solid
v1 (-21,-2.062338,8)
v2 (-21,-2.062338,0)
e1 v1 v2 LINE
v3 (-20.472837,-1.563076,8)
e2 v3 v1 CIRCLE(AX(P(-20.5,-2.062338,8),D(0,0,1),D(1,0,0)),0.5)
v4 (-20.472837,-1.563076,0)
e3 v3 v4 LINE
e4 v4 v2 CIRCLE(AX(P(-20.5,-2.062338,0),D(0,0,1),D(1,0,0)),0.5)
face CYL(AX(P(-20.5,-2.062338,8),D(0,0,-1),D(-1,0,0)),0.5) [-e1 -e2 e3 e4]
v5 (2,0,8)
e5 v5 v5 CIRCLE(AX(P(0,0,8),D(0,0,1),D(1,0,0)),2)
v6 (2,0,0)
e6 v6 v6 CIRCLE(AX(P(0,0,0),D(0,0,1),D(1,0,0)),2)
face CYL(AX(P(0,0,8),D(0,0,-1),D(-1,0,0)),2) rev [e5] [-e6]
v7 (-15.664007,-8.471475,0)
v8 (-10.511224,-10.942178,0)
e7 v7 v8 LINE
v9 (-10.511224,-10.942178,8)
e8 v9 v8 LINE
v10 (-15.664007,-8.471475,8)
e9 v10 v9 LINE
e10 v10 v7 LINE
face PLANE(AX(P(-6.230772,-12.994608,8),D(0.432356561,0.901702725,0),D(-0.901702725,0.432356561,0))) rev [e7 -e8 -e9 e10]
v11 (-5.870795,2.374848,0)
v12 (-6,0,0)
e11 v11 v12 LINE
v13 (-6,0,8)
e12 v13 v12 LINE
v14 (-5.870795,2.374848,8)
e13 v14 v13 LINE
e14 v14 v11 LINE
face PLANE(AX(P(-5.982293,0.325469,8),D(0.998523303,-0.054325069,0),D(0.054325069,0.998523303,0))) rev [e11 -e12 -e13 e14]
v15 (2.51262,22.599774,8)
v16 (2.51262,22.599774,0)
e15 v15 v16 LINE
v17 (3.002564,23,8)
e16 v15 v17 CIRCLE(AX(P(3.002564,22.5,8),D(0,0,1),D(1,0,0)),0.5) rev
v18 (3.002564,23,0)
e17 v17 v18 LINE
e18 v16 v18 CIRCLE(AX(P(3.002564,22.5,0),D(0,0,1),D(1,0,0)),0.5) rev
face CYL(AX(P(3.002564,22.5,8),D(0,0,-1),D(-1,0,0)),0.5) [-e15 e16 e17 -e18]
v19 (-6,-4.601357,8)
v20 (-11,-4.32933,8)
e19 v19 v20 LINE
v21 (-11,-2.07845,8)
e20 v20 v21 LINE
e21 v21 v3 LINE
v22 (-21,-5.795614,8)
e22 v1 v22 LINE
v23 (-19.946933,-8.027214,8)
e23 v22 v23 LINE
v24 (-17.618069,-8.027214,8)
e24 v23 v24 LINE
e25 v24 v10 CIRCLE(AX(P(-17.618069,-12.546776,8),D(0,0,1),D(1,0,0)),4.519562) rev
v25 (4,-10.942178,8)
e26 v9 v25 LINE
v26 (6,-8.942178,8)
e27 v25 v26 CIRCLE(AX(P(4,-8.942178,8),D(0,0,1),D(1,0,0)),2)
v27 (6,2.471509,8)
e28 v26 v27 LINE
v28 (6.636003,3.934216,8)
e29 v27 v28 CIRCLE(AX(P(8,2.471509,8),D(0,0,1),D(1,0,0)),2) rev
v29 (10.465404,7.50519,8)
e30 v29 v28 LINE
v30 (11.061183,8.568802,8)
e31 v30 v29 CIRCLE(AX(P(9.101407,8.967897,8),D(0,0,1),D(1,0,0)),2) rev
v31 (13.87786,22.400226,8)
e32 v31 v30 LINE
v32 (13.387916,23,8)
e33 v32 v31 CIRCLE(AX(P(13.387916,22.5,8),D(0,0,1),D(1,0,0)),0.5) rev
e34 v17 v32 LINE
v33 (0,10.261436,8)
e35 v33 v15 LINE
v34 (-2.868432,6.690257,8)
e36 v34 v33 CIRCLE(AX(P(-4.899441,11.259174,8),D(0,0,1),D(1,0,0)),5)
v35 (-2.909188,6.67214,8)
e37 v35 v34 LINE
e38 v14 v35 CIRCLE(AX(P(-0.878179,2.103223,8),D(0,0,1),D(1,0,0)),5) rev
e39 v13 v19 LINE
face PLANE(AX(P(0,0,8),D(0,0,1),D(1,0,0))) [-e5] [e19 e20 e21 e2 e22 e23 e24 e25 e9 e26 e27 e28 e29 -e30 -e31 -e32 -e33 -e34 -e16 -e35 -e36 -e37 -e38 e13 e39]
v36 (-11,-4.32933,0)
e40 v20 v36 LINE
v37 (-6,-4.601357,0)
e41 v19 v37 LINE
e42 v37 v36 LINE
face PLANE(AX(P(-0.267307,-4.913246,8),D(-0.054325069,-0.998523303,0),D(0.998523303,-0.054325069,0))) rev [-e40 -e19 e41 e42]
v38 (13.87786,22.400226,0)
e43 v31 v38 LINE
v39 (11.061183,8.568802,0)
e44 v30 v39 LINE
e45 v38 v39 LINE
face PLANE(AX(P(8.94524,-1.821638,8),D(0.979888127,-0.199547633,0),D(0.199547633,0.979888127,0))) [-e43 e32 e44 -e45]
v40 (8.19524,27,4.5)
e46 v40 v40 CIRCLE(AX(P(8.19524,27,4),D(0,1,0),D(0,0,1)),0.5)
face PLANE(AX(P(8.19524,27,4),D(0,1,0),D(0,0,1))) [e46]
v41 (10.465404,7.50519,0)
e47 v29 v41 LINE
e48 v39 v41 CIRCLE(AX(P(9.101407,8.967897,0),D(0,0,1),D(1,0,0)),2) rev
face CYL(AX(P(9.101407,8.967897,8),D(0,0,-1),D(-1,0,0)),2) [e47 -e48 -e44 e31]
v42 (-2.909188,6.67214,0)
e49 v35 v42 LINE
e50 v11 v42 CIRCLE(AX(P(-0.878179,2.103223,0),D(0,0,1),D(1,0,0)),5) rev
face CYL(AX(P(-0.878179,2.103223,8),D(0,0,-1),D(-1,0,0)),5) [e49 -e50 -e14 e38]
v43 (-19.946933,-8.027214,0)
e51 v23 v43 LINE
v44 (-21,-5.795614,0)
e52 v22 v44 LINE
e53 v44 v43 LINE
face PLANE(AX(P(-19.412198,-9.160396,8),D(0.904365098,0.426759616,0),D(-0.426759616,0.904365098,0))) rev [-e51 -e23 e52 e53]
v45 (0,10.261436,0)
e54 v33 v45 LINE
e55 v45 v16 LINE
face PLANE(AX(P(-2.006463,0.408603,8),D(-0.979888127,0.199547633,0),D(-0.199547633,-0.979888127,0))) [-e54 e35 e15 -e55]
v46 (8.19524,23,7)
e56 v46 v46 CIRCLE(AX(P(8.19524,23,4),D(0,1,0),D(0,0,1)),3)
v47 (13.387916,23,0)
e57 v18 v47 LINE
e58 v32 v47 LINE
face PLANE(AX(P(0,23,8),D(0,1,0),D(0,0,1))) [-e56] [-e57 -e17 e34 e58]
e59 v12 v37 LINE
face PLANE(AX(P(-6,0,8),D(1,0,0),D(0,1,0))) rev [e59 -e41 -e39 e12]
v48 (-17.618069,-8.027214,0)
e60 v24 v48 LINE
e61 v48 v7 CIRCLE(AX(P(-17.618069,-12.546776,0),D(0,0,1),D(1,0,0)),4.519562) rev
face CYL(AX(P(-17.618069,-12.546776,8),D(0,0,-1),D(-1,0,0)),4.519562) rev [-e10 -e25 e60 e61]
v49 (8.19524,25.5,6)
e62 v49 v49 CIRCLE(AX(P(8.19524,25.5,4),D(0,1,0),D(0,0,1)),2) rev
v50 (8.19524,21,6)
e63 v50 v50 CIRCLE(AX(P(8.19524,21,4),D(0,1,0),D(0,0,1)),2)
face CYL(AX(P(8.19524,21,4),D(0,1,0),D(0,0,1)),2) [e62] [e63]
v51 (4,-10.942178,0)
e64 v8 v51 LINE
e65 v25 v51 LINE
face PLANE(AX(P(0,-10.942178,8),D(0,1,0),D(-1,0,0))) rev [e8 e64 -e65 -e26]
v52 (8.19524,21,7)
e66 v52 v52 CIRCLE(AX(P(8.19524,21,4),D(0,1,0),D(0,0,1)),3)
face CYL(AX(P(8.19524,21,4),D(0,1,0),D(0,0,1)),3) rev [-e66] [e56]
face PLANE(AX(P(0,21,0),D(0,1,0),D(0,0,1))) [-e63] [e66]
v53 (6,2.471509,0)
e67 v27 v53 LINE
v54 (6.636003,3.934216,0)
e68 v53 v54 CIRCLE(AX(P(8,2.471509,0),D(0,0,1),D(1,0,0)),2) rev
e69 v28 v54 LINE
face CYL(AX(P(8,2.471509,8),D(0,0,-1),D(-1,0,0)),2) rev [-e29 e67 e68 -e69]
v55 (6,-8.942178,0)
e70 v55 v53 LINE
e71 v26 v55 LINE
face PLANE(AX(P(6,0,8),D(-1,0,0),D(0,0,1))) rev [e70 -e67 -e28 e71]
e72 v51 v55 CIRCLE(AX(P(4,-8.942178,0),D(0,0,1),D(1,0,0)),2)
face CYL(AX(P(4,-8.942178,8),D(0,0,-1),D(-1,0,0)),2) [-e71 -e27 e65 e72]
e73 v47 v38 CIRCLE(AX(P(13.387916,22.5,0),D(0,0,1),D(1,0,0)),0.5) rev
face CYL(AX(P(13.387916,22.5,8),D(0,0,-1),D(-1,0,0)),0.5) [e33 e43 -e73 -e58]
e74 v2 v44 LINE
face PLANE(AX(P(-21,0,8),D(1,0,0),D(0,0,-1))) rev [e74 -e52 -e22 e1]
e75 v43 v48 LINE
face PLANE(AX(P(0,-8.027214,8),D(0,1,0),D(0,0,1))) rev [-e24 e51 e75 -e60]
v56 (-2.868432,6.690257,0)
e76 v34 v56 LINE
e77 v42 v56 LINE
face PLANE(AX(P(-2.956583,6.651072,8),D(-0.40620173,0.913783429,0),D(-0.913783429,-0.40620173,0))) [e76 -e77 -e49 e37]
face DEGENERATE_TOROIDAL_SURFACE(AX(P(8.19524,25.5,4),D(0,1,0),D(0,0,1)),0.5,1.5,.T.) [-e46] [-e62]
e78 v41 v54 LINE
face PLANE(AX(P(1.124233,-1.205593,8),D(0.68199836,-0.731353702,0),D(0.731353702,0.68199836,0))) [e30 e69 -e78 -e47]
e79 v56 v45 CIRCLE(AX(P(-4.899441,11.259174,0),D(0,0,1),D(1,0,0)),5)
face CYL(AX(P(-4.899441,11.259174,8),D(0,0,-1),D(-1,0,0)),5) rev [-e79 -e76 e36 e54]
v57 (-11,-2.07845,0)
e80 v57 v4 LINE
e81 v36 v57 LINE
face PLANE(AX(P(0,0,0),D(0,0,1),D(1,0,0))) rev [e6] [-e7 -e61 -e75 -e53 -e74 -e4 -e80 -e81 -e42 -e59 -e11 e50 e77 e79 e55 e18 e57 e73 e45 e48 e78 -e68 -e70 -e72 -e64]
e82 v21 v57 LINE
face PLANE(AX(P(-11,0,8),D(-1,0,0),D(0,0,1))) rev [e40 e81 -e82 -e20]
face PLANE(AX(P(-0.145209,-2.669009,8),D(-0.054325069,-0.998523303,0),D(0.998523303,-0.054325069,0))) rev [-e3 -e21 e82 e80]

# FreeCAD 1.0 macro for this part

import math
import FreeCAD as App
import Part
import Sketcher
Q = App.Units.Quantity


def edges_at(feature, points):
    """Names of the edges that pass closest to the given points."""
    edges = feature.Shape.Edges
    near = lambda p: min(range(len(edges)), key=lambda i: edges[i].distToShape(Part.Vertex(*p))[0])
    return sorted({f"Edge{near(p) + 1}" for p in points})

doc = App.newDocument("Part")
body = doc.addObject("PartDesign::Body", "Body")

# Sketch on XY plane
sketch1 = body.newObject("Sketcher::SketchObject", "Sketch")
sketch1.AttachmentSupport = (doc.getObject("XY_Plane"), [""])
sketch1.MapMode = "FlatFace"
sketch1.addGeometry(Part.LineSegment(App.Vector(-19.947, -8.027, 0), App.Vector(-17.618, -8.027, 0)), False)
sketch1.addGeometry(Part.ArcOfCircle(Part.Circle(App.Vector(-17.618, -12.547, 0), App.Vector(0, 0, 1), 4.52), math.radians(64), math.radians(90)), False)
sketch1.addGeometry(Part.LineSegment(App.Vector(-15.664, -8.471, 0), App.Vector(-10.511, -10.942, 0)), False)
sketch1.addGeometry(Part.LineSegment(App.Vector(-10.511, -10.942, 0), App.Vector(4, -10.942, 0)), False)
sketch1.addGeometry(Part.ArcOfCircle(Part.Circle(App.Vector(4, -8.942, 0), App.Vector(0, 0, 1), 2), math.radians(-90), math.radians(0)), False)
sketch1.addGeometry(Part.LineSegment(App.Vector(6, -8.942, 0), App.Vector(6, 2.472, 0)), False)
sketch1.addGeometry(Part.ArcOfCircle(Part.Circle(App.Vector(8, 2.472, 0), App.Vector(0, 0, 1), 2), math.radians(133), math.radians(180)), False)
sketch1.addGeometry(Part.LineSegment(App.Vector(6.636, 3.934, 0), App.Vector(10.465, 7.505, 0)), False)
sketch1.addGeometry(Part.ArcOfCircle(Part.Circle(App.Vector(9.101, 8.968, 0), App.Vector(0, 0, 1), 2), math.radians(-47), math.radians(-12)), False)
sketch1.addGeometry(Part.LineSegment(App.Vector(11.061, 8.569, 0), App.Vector(13.878, 22.4, 0)), False)
sketch1.addGeometry(Part.ArcOfCircle(Part.Circle(App.Vector(13.388, 22.5, 0), App.Vector(0, 0, 1), 0.5), math.radians(-12), math.radians(90)), False)
sketch1.addGeometry(Part.LineSegment(App.Vector(13.388, 23, 0), App.Vector(3.003, 23, 0)), False)
sketch1.addGeometry(Part.ArcOfCircle(Part.Circle(App.Vector(3.003, 22.5, 0), App.Vector(0, 0, 1), 0.5), math.radians(90), math.radians(168)), False)
sketch1.addGeometry(Part.LineSegment(App.Vector(2.513, 22.6, 0), App.Vector(0, 10.261, 0)), False)
sketch1.addGeometry(Part.ArcOfCircle(Part.Circle(App.Vector(-4.899, 11.259, 0), App.Vector(0, 0, 1), 5), math.radians(-66), math.radians(-12)), False)
sketch1.addGeometry(Part.LineSegment(App.Vector(-2.868, 6.69, 0), App.Vector(-2.909, 6.672, 0)), False)
sketch1.addGeometry(Part.ArcOfCircle(Part.Circle(App.Vector(-0.878, 2.103, 0), App.Vector(0, 0, 1), 5), math.radians(114), math.radians(177)), False)
sketch1.addGeometry(Part.LineSegment(App.Vector(-5.871, 2.375, 0), App.Vector(-6, 0, 0)), False)
sketch1.addGeometry(Part.LineSegment(App.Vector(-6, 0, 0), App.Vector(-6, -4.601, 0)), False)
sketch1.addGeometry(Part.LineSegment(App.Vector(-6, -4.601, 0), App.Vector(-11, -4.329, 0)), False)
sketch1.addGeometry(Part.LineSegment(App.Vector(-11, -4.329, 0), App.Vector(-11, -2.078, 0)), False)
sketch1.addGeometry(Part.LineSegment(App.Vector(-11, -2.078, 0), App.Vector(-20.473, -1.563, 0)), False)
sketch1.addGeometry(Part.ArcOfCircle(Part.Circle(App.Vector(-20.5, -2.062, 0), App.Vector(0, 0, 1), 0.5), math.radians(87), math.radians(180)), False)
sketch1.addGeometry(Part.LineSegment(App.Vector(-21, -2.062, 0), App.Vector(-21, -5.796, 0)), False)
sketch1.addGeometry(Part.LineSegment(App.Vector(-21, -5.796, 0), App.Vector(-19.947, -8.027, 0)), False)
sketch1.addGeometry(Part.Circle(App.Vector(0, 0, 0), App.Vector(0, 0, 1), 2), False)
sketch1.addConstraint(Sketcher.Constraint("Tangent", 0, 2, 1, 2))
sketch1.addConstraint(Sketcher.Constraint("Tangent", 1, 1, 2, 1))
sketch1.addConstraint(Sketcher.Constraint("Coincident", 2, 2, 3, 1))
sketch1.addConstraint(Sketcher.Constraint("Tangent", 3, 2, 4, 1))
sketch1.addConstraint(Sketcher.Constraint("Tangent", 4, 2, 5, 1))
sketch1.addConstraint(Sketcher.Constraint("Tangent", 5, 2, 6, 2))
sketch1.addConstraint(Sketcher.Constraint("Tangent", 6, 1, 7, 1))
sketch1.addConstraint(Sketcher.Constraint("Tangent", 7, 2, 8, 1))
sketch1.addConstraint(Sketcher.Constraint("Tangent", 8, 2, 9, 1))
sketch1.addConstraint(Sketcher.Constraint("Tangent", 9, 2, 10, 1))
sketch1.addConstraint(Sketcher.Constraint("Tangent", 10, 2, 11, 1))
sketch1.addConstraint(Sketcher.Constraint("Tangent", 11, 2, 12, 1))
sketch1.addConstraint(Sketcher.Constraint("Tangent", 12, 2, 13, 1))
sketch1.addConstraint(Sketcher.Constraint("Tangent", 13, 2, 14, 2))
sketch1.addConstraint(Sketcher.Constraint("Tangent", 14, 1, 15, 1))
sketch1.addConstraint(Sketcher.Constraint("Tangent", 15, 2, 16, 1))
sketch1.addConstraint(Sketcher.Constraint("Tangent", 16, 2, 17, 1))
sketch1.addConstraint(Sketcher.Constraint("Coincident", 17, 2, 18, 1))
sketch1.addConstraint(Sketcher.Constraint("Coincident", 18, 2, 19, 1))
sketch1.addConstraint(Sketcher.Constraint("Coincident", 19, 2, 20, 1))
sketch1.addConstraint(Sketcher.Constraint("Coincident", 20, 2, 21, 1))
sketch1.addConstraint(Sketcher.Constraint("Tangent", 21, 2, 22, 1))
sketch1.addConstraint(Sketcher.Constraint("Tangent", 22, 2, 23, 1))
sketch1.addConstraint(Sketcher.Constraint("Coincident", 23, 2, 24, 1))
sketch1.addConstraint(Sketcher.Constraint("Coincident", 24, 2, 0, 1))
sketch1.addConstraint(Sketcher.Constraint("Horizontal", 0))
sketch1.addConstraint(Sketcher.Constraint("Horizontal", 3))
sketch1.addConstraint(Sketcher.Constraint("Vertical", 5))
sketch1.addConstraint(Sketcher.Constraint("Horizontal", 11))
sketch1.addConstraint(Sketcher.Constraint("Vertical", 18))
sketch1.addConstraint(Sketcher.Constraint("Vertical", 20))
sketch1.addConstraint(Sketcher.Constraint("Vertical", 23))
sketch1.addConstraint(Sketcher.Constraint("Coincident", 25, 3, -1, 1))
sketch1.addConstraint(Sketcher.Constraint("Equal", 4, 6))
sketch1.addConstraint(Sketcher.Constraint("Equal", 6, 8))
sketch1.addConstraint(Sketcher.Constraint("Equal", 10, 12))
sketch1.addConstraint(Sketcher.Constraint("Equal", 14, 16))
sketch1.addConstraint(Sketcher.Constraint("Equal", 12, 22))
sketch1.addConstraint(Sketcher.Constraint("Equal", 8, 25))
sketch1.addConstraint(Sketcher.Constraint("PointOnObject", 13, 2, -2))
sketch1.addConstraint(Sketcher.Constraint("PointOnObject", 17, 2, -1))
sketch1.addConstraint(Sketcher.Constraint("Parallel", 9, 13))
sketch1.addConstraint(Sketcher.Constraint("Perpendicular", 17, 19))
sketch1.addConstraint(Sketcher.Constraint("Parallel", 19, 21))
sketch1.addConstraint(Sketcher.Constraint("Diameter", 25, Q("4 mm")))
sketch1.addConstraint(Sketcher.Constraint("Radius", 14, Q("5 mm")))
sketch1.addConstraint(Sketcher.Constraint("Radius", 10, Q("0.5 mm")))
sketch1.addConstraint(Sketcher.Constraint("Angle", 7, Q("43 deg")))
sketch1.addConstraint(Sketcher.Constraint("DistanceX", -1, 1, 4, 3, Q("4 mm")))
sketch1.addConstraint(Sketcher.Constraint("DistanceY", -1, 1, 10, 2, Q("23 mm")))
sketch1.addConstraint(Sketcher.Constraint("DistanceX", 17, 2, -1, 1, Q("6 mm")))
sketch1.addConstraint(Sketcher.Constraint("DistanceX", 19, 2, -1, 1, Q("11 mm")))
sketch1.addConstraint(Sketcher.Constraint("DistanceX", 22, 2, -1, 1, Q("21 mm")))
sketch1.addConstraint(Sketcher.Constraint("Radius", 1, Q("4.519562 mm")))
sketch1.addConstraint(Sketcher.Constraint("Distance", 15, Q("0.044601 mm")))
sketch1.addConstraint(Sketcher.Constraint("DistanceY", 20, 1, 20, 2, Q("2.25088 mm")))
sketch1.addConstraint(Sketcher.Constraint("DistanceY", -1, 1, 8, 2, Q("8.568802 mm")))
sketch1.addConstraint(Sketcher.Constraint("DistanceY", 1, 3, 4, 3, Q("3.604599 mm")))
sketch1.addConstraint(Sketcher.Constraint("DistanceY", 4, 3, 16, 3, Q("11.045401 mm")))
sketch1.addConstraint(Sketcher.Constraint("DistanceY", 1, 3, 1, 1, Q("4.075301 mm")))
sketch1.addConstraint(Sketcher.Constraint("DistanceX", 6, 1, 7, 2, Q("3.829401 mm")))
sketch1.addConstraint(Sketcher.Constraint("DistanceY", 20, 2, 16, 2, Q("4.453299 mm")))
sketch1.addConstraint(Sketcher.Constraint("DistanceY", 1, 1, 21, 2, Q("6.908399 mm")))
sketch1.addConstraint(Sketcher.Constraint("DistanceY", 0, 2, 23, 2, Q("2.2316 mm")))
sketch1.addConstraint(Sketcher.Constraint("Distance", 9, Q("14.11531 mm")))
sketch1.addConstraint(Sketcher.Constraint("Distance", 17, Q("2.378361 mm")))
sketch1.addConstraint(Sketcher.Constraint("DistanceX", 0, 1, 0, 2, Q("2.328864 mm")))
sketch1.addConstraint(Sketcher.Constraint("DistanceX", 3, 1, 3, 2, Q("14.511224 mm")))
pad1 = body.newObject("PartDesign::Pad", "Pad")
pad1.Profile = sketch1
pad1.Length = 8

# Sketch on XZ plane
sketch2 = body.newObject("Sketcher::SketchObject", "Sketch001")
sketch2.AttachmentSupport = (doc.getObject("XZ_Plane"), [""])
sketch2.MapMode = "FlatFace"
sketch2.AttachmentOffset = App.Placement(App.Vector(0, 0, -23), App.Rotation())
sketch2.addGeometry(Part.ArcOfCircle(Part.Circle(App.Vector(8.2, 4, 0), App.Vector(0, 0, 1), 3), math.radians(-142), math.radians(0)), False)
sketch2.addGeometry(Part.ArcOfCircle(Part.Circle(App.Vector(8.2, 4, 0), App.Vector(0, 0, 1), 3), math.radians(38), math.radians(218)), False)
sketch2.addGeometry(Part.ArcOfCircle(Part.Circle(App.Vector(8.2, 4, 0), App.Vector(0, 0, 1), 3), math.radians(0), math.radians(38)), False)
sketch2.addGeometry(Part.ArcOfCircle(Part.Circle(App.Vector(8.2, 4, 0), App.Vector(0, 0, 1), 2), math.radians(0), math.radians(38)), False)
sketch2.addGeometry(Part.ArcOfCircle(Part.Circle(App.Vector(8.2, 4, 0), App.Vector(0, 0, 1), 2), math.radians(38), math.radians(218)), False)
sketch2.addGeometry(Part.ArcOfCircle(Part.Circle(App.Vector(8.2, 4, 0), App.Vector(0, 0, 1), 2), math.radians(-142), math.radians(0)), False)
sketch2.addConstraint(Sketcher.Constraint("Tangent", 0, 1, 1, 2))
sketch2.addConstraint(Sketcher.Constraint("Tangent", 1, 1, 2, 2))
sketch2.addConstraint(Sketcher.Constraint("Tangent", 2, 1, 0, 2))
sketch2.addConstraint(Sketcher.Constraint("Tangent", 3, 2, 4, 1))
sketch2.addConstraint(Sketcher.Constraint("Tangent", 4, 2, 5, 1))
sketch2.addConstraint(Sketcher.Constraint("Tangent", 5, 2, 3, 1))
sketch2.addConstraint(Sketcher.Constraint("Coincident", 3, 3, 0, 3))
sketch2.addConstraint(Sketcher.Constraint("Horizontal", 5, 3, 2, 1))
sketch2.addConstraint(Sketcher.Constraint("Horizontal", 2, 1, 5, 2))
sketch2.addConstraint(Sketcher.Constraint("Radius", 0, Q("3 mm")))
sketch2.addConstraint(Sketcher.Constraint("Radius", 3, Q("2 mm")))
sketch2.addConstraint(Sketcher.Constraint("DistanceY", -1, 1, 0, 3, Q("4 mm")))
sketch2.addConstraint(Sketcher.Constraint("DistanceY", -1, 1, 3, 2, Q("5.220501 mm")))
sketch2.addConstraint(Sketcher.Constraint("DistanceY", -1, 1, 4, 2, Q("2.779499 mm")))
sketch2.addConstraint(Sketcher.Constraint("DistanceX", -1, 1, 0, 3, Q("8.19524 mm")))
sketch2.addConstraint(Sketcher.Constraint("DistanceY", -1, 1, 0, 1, Q("2.169248 mm")))
sketch2.addConstraint(Sketcher.Constraint("DistanceY", -1, 1, 1, 1, Q("5.830752 mm")))
pocket1 = body.newObject("PartDesign::Pocket", "Pocket")
pocket1.Profile = sketch2
pocket1.Length = 2
pocket1.Reversed = True

# Sketch on XZ plane
sketch3 = body.newObject("Sketcher::SketchObject", "Sketch002")
sketch3.AttachmentSupport = (doc.getObject("XZ_Plane"), [""])
sketch3.MapMode = "FlatFace"
sketch3.AttachmentOffset = App.Placement(App.Vector(0, 0, -27), App.Rotation())
sketch3.addGeometry(Part.Circle(App.Vector(8.2, 4, 0), App.Vector(0, 0, 1), 2), False)
sketch3.addConstraint(Sketcher.Constraint("Diameter", 0, Q("4 mm")))
sketch3.addConstraint(Sketcher.Constraint("DistanceY", -1, 1, 0, 3, Q("4 mm")))
sketch3.addConstraint(Sketcher.Constraint("DistanceX", -1, 1, 0, 3, Q("8.19524 mm")))
pad2 = body.newObject("PartDesign::Pad", "Pad001")
pad2.Profile = sketch3
pad2.Length = 4
doc.recompute()

fillet = body.newObject("PartDesign::Fillet", "Fillet")
fillet.Base = (pad2, edges_at(pad2, [(8.195, 27, 2)]))
fillet.Radius = 1.5

doc.recompute()
